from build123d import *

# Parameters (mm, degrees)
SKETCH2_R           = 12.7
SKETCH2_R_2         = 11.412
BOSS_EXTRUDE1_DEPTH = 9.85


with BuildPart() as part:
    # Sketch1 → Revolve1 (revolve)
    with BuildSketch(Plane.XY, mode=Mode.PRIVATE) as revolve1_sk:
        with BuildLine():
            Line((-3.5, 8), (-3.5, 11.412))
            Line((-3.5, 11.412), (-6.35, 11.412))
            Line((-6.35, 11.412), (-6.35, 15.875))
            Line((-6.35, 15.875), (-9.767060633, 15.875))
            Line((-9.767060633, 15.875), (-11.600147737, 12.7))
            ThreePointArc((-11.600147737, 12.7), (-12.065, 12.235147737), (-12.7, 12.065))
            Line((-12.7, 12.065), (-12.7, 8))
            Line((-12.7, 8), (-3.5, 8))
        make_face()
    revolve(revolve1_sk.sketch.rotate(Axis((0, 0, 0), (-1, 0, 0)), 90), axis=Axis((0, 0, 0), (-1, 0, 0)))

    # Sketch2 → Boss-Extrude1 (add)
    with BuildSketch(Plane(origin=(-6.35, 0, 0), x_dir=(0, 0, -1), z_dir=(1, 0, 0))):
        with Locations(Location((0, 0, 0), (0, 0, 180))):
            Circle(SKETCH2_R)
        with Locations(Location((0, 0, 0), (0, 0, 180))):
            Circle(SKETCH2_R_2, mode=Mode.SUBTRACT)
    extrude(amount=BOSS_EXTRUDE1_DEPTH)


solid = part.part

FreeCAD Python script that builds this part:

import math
import FreeCAD as App
import Part
import Sketcher
from FreeCAD import Vector
Q = App.Units.Quantity

doc = App.newDocument("Part")
params = doc.addObject("Spreadsheet::Sheet", "Params")
for row, (alias, value) in enumerate([
    ("sketch1_radius", "0.05 in"),
    ("revolution_angle", "360 deg"),
    ("sketch2_diameter", "1 in"),
    ("pad1_length", "9.85 mm"),
], start=1):
    params.set(f"A{row}", alias)
    params.set(f"B{row}", "=" + value)
    params.setAlias(f"B{row}", alias)

body = doc.addObject("PartDesign::Body", "Body")

sketch1 = body.newObject("Sketcher::SketchObject", "Sketch")
sketch1.AttachmentSupport = (doc.getObject("XY_Plane"), [""])
sketch1.MapMode = "FlatFace"
sketch1.addGeometry([
    Part.LineSegment(Vector(-3.5, 8, 0), Vector(-3.5, 11.4, 0)),
    Part.LineSegment(Vector(-3.5, 11.4, 0), Vector(-6.3, 11.4, 0)),
    Part.LineSegment(Vector(-6.3, 11.4, 0), Vector(-6.3, 15.9, 0)),
    Part.LineSegment(Vector(-6.3, 15.9, 0), Vector(-9.8, 15.9, 0)),
    Part.LineSegment(Vector(-9.8, 15.9, 0), Vector(-11.6, 12.7, 0)),
    Part.ArcOfCircle(Part.Circle(Vector(-12.7, 13.3, 0), Vector(0, 0, 1), 1.3), math.radians(-90), math.radians(-30)),
    Part.LineSegment(Vector(-12.7, 12.1, 0), Vector(-12.7, 8, 0)),
    Part.LineSegment(Vector(-12.7, 8, 0), Vector(-3.5, 8, 0)),
], False)
sketch1.addConstraint([
    Sketcher.Constraint("Coincident", 0, 2, 1, 1),
    Sketcher.Constraint("Coincident", 1, 2, 2, 1),
    Sketcher.Constraint("Coincident", 2, 2, 3, 1),
    Sketcher.Constraint("Coincident", 3, 2, 4, 1),
    Sketcher.Constraint("Tangent", 4, 2, 5, 2),
    Sketcher.Constraint("Coincident", 5, 1, 6, 1),
    Sketcher.Constraint("Coincident", 6, 2, 7, 1),
    Sketcher.Constraint("Coincident", 7, 2, 0, 1),
    Sketcher.Constraint("Vertical", 0),
    Sketcher.Constraint("Horizontal", 1),
    Sketcher.Constraint("Vertical", 2),
    Sketcher.Constraint("Horizontal", 3),
    Sketcher.Constraint("Vertical", 6),
    Sketcher.Constraint("Horizontal", 7),
    Sketcher.Constraint("Radius", 5, Q("0.05 in")),
    Sketcher.Constraint("Angle", 4, Q("-120 deg")),
    Sketcher.Constraint("DistanceX", 5, 3, -1, 1, Q("0.5 in")),
    Sketcher.Constraint("DistanceY", -1, 1, 4, 2, Q("0.5 in")),
    Sketcher.Constraint("DistanceX", 5, 1, -1, 1, Q("0.5 in")),
    Sketcher.Constraint("DistanceY", 5, 3, 2, 2, Q("0.1 in")),
    Sketcher.Constraint("DistanceX", 1, 2, -1, 1, Q("0.25 in")),
    Sketcher.Constraint("DistanceX", 1, 2, 1, 1, Q("2.85 mm")),
    Sketcher.Constraint("DistanceY", 0, 1, 0, 2, Q("3.412 mm")),
    Sketcher.Constraint("DistanceY", 2, 1, 2, 2, Q("4.463 mm")),
])
sketch1.setExpression("Constraints[14]", "Params.sketch1_radius")
revolution = body.newObject("PartDesign::Revolution", "Revolution")
revolution.Profile = sketch1
revolution.ReferenceAxis = (sketch1, ["H_Axis"])
revolution.setExpression("Angle", "Params.revolution_angle")

sketch2 = body.newObject("Sketcher::SketchObject", "Sketch001")
sketch2.AttachmentSupport = (doc.getObject("YZ_Plane"), [""])
sketch2.MapMode = "FlatFace"
sketch2.AttachmentOffset = App.Placement(Vector(0, 0, -0.25 * 25.4), App.Rotation())
sketch2.addGeometry([
    Part.Circle(Vector(0, 0, 0), Vector(0, 0, 1), 13),
    Part.Circle(Vector(0, 0, 0), Vector(0, 0, 1), 11),
], False)
sketch2.addConstraint([
    Sketcher.Constraint("Coincident", 0, 3, -1, 1),
    Sketcher.Constraint("Coincident", 1, 3, -1, 1),
    Sketcher.Constraint("Diameter", 0, Q("1 in")),
    Sketcher.Constraint("Diameter", 1, Q("22.824 mm")),
])
sketch2.setExpression("Constraints[2]", "Params.sketch2_diameter")
pad1 = body.newObject("PartDesign::Pad", "Pad")
pad1.Profile = sketch2
pad1.setExpression("Length", "Params.pad1_length")

doc.recompute()
